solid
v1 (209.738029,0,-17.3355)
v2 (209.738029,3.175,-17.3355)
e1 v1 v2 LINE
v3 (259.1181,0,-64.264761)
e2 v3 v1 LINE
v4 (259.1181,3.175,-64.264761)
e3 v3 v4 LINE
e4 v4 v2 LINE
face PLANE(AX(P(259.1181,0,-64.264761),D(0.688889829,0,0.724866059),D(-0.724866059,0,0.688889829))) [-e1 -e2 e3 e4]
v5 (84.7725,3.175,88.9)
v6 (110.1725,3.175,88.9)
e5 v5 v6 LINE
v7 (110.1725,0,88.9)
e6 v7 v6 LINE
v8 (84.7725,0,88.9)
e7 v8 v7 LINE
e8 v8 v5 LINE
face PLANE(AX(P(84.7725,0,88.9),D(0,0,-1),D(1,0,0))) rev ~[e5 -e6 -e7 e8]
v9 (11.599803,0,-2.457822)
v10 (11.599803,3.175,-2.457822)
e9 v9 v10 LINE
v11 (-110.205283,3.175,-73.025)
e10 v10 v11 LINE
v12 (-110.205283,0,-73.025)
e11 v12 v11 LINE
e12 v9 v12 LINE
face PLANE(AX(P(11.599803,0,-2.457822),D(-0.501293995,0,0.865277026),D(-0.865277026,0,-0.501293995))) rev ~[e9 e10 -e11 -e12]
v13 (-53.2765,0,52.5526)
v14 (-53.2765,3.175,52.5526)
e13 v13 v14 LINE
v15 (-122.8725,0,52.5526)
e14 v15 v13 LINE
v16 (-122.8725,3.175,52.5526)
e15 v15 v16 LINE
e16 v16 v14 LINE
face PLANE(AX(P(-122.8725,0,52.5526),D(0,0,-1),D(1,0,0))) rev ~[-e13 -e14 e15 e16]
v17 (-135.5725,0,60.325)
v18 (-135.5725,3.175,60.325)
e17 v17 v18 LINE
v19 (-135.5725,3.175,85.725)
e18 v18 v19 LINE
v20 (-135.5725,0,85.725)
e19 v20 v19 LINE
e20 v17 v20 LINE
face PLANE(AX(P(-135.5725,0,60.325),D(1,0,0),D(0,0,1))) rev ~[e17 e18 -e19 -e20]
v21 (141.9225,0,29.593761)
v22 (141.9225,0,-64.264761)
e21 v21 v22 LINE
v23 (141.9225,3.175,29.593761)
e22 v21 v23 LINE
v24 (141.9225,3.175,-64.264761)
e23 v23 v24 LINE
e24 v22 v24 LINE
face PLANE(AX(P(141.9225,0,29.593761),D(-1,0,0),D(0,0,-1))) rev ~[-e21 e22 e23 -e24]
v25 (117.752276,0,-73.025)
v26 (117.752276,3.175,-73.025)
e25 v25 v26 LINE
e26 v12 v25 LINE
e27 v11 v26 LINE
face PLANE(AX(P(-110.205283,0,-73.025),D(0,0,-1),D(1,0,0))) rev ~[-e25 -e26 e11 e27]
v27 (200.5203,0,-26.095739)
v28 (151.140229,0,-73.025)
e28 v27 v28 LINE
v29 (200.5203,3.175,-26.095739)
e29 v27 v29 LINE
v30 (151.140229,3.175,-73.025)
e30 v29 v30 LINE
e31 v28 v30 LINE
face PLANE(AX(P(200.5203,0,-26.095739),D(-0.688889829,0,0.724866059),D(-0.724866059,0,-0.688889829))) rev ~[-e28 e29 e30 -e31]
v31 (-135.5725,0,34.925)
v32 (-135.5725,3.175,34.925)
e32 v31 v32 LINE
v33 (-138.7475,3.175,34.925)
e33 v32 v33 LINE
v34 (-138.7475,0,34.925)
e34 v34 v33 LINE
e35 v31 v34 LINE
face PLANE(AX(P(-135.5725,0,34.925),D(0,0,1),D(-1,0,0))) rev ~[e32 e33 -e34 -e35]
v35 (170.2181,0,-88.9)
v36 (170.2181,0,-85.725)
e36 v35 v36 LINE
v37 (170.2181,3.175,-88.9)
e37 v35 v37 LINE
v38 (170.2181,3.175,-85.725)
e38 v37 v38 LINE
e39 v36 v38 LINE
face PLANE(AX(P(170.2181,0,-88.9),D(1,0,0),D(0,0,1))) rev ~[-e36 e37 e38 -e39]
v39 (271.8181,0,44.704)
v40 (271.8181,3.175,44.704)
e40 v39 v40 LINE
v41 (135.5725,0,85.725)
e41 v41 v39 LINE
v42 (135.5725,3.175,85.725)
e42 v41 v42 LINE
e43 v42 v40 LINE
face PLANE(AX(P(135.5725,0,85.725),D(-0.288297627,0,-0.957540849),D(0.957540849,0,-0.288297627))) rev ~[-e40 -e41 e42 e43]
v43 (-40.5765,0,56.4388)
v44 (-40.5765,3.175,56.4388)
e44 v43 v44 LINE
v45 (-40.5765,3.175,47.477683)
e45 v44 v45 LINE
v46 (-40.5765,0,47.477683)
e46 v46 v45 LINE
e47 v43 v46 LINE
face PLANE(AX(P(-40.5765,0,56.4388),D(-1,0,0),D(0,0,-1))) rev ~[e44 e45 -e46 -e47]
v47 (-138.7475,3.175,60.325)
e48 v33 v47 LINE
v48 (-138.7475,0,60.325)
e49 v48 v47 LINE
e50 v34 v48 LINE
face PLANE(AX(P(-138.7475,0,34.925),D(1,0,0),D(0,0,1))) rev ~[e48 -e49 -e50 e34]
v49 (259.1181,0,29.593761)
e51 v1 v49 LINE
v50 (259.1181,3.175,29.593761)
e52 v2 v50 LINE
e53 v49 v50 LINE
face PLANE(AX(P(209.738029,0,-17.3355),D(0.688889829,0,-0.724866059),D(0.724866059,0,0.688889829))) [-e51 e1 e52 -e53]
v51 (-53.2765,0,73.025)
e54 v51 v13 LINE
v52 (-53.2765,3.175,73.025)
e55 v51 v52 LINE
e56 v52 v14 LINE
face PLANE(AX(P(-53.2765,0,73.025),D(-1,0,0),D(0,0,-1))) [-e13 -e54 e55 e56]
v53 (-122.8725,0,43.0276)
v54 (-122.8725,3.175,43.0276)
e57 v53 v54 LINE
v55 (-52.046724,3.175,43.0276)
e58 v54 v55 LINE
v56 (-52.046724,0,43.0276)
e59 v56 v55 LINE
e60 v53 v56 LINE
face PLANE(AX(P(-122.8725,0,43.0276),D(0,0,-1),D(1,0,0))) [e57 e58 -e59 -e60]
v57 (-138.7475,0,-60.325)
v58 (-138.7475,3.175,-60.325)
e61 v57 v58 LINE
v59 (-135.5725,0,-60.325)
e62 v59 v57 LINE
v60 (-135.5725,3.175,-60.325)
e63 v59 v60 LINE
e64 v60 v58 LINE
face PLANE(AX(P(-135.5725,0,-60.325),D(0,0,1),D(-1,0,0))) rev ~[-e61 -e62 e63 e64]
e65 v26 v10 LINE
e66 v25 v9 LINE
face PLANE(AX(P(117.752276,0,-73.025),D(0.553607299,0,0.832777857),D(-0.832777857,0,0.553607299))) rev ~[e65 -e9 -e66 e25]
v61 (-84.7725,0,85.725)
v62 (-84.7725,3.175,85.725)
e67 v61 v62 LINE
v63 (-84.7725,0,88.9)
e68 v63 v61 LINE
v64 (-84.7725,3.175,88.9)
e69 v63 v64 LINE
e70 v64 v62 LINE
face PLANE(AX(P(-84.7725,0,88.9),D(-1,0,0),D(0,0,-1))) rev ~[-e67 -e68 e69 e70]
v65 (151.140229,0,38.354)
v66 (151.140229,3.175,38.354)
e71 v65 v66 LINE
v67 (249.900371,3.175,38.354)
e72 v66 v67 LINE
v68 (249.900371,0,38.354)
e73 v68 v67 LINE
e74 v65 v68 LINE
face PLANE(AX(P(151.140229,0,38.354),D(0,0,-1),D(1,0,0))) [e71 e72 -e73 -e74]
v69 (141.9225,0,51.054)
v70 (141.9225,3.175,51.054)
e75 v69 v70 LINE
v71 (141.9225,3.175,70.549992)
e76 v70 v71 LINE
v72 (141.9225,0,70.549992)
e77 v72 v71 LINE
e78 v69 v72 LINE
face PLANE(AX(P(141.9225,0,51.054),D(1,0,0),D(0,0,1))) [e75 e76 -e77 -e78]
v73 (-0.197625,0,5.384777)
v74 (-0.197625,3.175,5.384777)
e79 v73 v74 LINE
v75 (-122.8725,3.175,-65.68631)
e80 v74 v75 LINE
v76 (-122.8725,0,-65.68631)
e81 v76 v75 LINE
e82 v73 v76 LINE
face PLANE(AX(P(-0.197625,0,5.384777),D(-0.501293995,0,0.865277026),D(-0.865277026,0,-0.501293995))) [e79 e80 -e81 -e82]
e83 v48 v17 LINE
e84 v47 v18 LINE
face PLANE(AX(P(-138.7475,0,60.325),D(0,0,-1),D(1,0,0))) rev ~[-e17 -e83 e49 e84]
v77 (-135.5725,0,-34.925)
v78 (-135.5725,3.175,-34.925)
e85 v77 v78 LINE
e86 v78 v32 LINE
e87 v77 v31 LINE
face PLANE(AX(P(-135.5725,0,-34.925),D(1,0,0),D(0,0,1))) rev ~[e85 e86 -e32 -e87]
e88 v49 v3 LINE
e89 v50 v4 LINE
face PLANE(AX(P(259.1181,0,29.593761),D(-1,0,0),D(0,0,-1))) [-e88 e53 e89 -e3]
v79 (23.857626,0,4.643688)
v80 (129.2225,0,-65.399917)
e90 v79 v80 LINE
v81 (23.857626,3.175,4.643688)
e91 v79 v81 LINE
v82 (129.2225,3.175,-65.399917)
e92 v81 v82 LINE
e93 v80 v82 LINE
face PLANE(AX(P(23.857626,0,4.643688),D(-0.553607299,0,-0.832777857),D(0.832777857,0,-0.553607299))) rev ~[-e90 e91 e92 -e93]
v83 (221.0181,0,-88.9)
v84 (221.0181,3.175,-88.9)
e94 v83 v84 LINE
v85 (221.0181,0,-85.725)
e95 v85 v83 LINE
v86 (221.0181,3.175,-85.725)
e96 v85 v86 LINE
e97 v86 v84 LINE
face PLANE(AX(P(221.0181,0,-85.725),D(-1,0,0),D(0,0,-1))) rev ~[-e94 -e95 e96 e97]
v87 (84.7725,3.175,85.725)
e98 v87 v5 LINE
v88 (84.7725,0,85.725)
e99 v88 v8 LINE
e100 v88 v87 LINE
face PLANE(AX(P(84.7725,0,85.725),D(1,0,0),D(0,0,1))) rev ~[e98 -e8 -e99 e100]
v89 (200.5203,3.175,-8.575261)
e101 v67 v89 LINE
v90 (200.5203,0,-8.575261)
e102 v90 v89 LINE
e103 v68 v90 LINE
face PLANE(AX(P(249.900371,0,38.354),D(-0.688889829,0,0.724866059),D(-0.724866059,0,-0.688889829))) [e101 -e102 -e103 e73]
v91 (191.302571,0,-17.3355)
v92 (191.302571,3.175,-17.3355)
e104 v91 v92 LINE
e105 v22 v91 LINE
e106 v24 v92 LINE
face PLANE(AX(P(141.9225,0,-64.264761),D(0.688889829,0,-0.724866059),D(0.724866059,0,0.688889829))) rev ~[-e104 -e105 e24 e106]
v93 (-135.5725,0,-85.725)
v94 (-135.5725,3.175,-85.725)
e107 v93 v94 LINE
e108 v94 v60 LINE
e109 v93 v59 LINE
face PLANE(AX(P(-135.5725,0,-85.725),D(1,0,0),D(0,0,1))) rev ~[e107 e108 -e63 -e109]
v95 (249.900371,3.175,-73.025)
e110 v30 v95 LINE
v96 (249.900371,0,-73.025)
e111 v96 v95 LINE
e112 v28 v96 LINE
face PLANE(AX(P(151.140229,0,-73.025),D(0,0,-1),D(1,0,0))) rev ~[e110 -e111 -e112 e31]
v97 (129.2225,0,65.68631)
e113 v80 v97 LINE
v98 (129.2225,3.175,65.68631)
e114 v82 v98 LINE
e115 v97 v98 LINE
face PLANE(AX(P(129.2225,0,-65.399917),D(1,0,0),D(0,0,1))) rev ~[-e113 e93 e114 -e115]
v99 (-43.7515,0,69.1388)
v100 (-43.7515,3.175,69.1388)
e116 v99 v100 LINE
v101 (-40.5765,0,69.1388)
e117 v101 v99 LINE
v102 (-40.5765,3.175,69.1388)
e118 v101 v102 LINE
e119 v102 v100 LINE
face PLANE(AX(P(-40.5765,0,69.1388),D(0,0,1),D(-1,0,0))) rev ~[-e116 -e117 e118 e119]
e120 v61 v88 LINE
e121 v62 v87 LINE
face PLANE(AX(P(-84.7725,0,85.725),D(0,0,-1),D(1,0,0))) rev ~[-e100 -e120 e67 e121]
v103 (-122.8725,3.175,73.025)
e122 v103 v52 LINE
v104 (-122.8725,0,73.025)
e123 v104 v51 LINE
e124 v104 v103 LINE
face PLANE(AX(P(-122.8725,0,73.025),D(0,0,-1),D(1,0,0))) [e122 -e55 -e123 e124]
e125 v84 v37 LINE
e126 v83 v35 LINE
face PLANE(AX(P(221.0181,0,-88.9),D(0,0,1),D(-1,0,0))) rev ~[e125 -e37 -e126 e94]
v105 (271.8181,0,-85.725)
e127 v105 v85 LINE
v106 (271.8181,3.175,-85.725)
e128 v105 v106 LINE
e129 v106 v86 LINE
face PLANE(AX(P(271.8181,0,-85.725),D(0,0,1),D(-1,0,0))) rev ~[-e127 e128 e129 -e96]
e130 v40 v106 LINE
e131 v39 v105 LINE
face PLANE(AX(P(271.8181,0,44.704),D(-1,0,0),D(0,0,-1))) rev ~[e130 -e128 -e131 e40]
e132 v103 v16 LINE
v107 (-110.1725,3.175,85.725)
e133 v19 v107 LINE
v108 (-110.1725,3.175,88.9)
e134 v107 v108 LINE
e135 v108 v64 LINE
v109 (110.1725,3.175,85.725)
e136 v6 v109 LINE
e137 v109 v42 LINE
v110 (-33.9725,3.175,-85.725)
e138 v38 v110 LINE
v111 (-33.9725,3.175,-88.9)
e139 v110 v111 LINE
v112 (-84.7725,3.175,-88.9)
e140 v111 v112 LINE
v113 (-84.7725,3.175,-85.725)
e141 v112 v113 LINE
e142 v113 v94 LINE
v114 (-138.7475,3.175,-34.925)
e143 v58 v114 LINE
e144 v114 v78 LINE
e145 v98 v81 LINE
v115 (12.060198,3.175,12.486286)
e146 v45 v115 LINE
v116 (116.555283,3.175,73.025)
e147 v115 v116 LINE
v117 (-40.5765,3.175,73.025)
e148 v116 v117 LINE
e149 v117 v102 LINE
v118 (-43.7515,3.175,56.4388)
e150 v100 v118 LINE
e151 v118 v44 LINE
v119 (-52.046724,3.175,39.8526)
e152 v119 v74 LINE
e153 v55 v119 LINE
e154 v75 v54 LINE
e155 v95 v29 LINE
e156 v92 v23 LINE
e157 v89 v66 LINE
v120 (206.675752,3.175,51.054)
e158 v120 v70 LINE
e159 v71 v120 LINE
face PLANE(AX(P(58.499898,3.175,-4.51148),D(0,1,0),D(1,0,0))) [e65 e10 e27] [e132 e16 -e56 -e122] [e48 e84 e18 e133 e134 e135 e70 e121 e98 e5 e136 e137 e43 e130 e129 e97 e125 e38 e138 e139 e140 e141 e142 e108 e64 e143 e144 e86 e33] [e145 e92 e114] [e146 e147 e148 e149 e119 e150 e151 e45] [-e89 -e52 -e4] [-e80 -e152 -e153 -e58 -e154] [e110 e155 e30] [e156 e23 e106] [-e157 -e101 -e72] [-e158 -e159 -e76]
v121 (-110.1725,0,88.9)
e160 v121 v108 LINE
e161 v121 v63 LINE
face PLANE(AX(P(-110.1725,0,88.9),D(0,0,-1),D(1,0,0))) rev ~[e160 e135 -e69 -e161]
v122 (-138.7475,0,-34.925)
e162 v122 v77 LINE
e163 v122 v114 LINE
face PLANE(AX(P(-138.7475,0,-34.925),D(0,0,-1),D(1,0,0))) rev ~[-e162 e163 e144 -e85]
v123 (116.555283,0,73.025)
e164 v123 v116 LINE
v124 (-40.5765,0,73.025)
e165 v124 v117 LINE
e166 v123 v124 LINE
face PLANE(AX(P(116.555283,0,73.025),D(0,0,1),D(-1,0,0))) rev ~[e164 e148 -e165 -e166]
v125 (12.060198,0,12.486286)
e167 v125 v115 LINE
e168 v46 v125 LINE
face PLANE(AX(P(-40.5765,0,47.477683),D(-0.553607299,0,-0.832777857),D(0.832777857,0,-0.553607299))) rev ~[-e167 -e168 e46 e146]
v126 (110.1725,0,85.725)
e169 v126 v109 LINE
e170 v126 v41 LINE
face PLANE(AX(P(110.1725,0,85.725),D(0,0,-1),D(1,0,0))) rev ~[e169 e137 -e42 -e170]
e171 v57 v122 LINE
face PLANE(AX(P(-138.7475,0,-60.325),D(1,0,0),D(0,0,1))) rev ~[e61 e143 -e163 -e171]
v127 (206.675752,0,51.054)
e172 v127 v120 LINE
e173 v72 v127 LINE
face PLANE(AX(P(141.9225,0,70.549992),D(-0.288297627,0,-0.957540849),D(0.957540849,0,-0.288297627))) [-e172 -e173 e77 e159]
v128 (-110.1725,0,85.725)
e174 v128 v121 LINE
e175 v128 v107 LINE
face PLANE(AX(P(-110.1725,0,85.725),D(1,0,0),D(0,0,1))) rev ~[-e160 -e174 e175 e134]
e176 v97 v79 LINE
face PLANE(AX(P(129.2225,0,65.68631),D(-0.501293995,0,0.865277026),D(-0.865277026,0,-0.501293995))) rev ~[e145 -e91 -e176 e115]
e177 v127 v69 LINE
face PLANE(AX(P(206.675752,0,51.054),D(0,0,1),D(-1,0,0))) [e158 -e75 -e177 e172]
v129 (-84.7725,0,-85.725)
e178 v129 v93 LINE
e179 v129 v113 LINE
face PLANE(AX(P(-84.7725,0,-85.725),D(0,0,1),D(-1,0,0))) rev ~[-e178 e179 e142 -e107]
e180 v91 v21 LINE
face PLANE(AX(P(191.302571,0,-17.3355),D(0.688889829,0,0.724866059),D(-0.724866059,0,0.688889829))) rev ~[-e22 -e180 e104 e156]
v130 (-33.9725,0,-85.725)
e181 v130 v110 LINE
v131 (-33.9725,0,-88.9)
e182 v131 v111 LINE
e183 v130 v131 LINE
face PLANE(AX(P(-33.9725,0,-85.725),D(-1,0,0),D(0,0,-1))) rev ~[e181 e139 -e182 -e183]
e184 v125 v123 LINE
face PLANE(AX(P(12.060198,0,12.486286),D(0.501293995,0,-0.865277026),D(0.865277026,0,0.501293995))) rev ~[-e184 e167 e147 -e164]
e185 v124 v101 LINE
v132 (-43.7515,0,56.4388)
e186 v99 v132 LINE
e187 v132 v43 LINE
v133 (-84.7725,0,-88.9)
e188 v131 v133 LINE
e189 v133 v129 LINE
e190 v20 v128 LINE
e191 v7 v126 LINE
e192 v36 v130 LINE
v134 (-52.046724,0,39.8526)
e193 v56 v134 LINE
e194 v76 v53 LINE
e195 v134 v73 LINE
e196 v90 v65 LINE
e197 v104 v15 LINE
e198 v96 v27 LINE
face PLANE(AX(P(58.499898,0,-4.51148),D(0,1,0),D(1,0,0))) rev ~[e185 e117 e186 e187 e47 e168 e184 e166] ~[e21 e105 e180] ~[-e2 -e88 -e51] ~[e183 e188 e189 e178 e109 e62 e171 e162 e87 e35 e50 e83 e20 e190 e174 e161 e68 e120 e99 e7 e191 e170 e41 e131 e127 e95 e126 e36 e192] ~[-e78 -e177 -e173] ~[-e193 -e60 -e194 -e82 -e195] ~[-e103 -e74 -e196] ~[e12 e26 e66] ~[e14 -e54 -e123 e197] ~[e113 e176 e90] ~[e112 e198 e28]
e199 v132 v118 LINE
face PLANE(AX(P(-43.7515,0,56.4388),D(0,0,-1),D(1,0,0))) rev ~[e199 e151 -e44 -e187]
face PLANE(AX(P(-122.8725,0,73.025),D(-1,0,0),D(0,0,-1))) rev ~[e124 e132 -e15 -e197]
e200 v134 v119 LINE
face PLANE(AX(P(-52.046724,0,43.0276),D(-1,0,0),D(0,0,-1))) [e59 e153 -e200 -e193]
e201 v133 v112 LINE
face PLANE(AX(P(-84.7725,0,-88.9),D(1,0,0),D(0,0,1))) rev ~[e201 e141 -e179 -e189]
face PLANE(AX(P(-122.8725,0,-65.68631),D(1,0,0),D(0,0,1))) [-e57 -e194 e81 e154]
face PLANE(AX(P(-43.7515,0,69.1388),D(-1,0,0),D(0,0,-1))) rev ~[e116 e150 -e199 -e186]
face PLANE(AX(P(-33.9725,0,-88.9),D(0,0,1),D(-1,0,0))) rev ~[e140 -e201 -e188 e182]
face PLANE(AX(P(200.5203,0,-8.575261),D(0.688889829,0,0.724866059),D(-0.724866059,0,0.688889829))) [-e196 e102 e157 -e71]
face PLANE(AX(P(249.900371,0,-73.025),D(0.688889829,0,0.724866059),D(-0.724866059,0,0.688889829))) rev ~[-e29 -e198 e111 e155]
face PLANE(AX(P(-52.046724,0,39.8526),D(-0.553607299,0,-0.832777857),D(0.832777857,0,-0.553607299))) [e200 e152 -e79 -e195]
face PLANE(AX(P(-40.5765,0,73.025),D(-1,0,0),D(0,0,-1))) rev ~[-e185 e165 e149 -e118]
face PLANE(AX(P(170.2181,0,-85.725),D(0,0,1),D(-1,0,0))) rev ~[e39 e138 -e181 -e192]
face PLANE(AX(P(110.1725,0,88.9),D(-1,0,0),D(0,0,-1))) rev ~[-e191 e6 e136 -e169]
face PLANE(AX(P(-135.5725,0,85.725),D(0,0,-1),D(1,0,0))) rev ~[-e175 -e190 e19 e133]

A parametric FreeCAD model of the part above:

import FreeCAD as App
import Part
import Sketcher
from FreeCAD import Vector
Q = App.Units.Quantity


def add_polygon(sketch, points):
    """Adds a closed chain of lines whose ends are joined by coincident constraints."""
    first, n = sketch.GeometryCount, len(points)
    for a, b in zip(points, points[1:] + points[:1]):
        sketch.addGeometry(Part.LineSegment(App.Vector(*a, 0), App.Vector(*b, 0)), False)
    for i in range(n):
        sketch.addConstraint(Sketcher.Constraint("Coincident", first + i, 2, first + (i + 1) % n, 1))

doc = App.newDocument("Part")
body = doc.addObject("PartDesign::Body", "Body")

sketch1 = body.newObject("Sketcher::SketchObject", "Sketch")
sketch1.AttachmentSupport = (doc.getObject("XZ_Plane"), [""])
sketch1.MapMode = "FlatFace"
add_polygon(sketch1, [(135.6, 85.7), (271.8, 44.7), (271.8, -85.7), (221, -85.7), (221, -88.9), (170.2, -88.9), (170.2, -85.7), (-34, -85.7), (-34, -88.9), (-84.8, -88.9), (-84.8, -85.7), (-135.6, -85.7), (-135.6, -60.3), (-138.7, -60.3), (-138.7, -34.9), (-135.6, -34.9), (-135.6, 34.9), (-138.7, 34.9), (-138.7, 60.3), (-135.6, 60.3), (-135.6, 85.7), (-110.2, 85.7), (-110.2, 88.9), (-84.8, 88.9), (-84.8, 85.7), (84.8, 85.7), (84.8, 88.9), (110.2, 88.9), (110.2, 85.7)])
add_polygon(sketch1, [(-53.3, 73), (-122.9, 73), (-122.9, 52.6), (-53.3, 52.6)])
add_polygon(sketch1, [(-43.8, 56.4), (-40.6, 56.4), (-40.6, 47.5), (12.1, 12.5), (116.6, 73), (-40.6, 73), (-40.6, 69.1), (-43.8, 69.1)])
add_polygon(sketch1, [(141.9, 70.5), (141.9, 51.1), (206.7, 51.1)])
add_polygon(sketch1, [(23.9, 4.6), (129.2, -65.4), (129.2, 65.7)])
add_polygon(sketch1, [(249.9, 38.4), (151.1, 38.4), (200.5, -8.6)])
add_polygon(sketch1, [(-122.9, 43), (-122.9, -65.7), (-0.2, 5.4), (-52, 39.9), (-52, 43)])
add_polygon(sketch1, [(11.6, -2.5), (-110.2, -73), (117.8, -73)])
add_polygon(sketch1, [(141.9, -64.3), (191.3, -17.3), (141.9, 29.6)])
add_polygon(sketch1, [(259.1, 29.6), (209.7, -17.3), (259.1, -64.3)])
add_polygon(sketch1, [(200.5, -26.1), (151.1, -73), (249.9, -73)])
sketch1.addConstraint([
    Sketcher.Constraint("Vertical", 1),
    Sketcher.Constraint("Horizontal", 2),
    Sketcher.Constraint("Vertical", 3),
    Sketcher.Constraint("Horizontal", 4),
    Sketcher.Constraint("Vertical", 5),
    Sketcher.Constraint("Horizontal", 6),
    Sketcher.Constraint("Vertical", 7),
    Sketcher.Constraint("Horizontal", 8),
    Sketcher.Constraint("Vertical", 9),
    Sketcher.Constraint("Horizontal", 10),
    Sketcher.Constraint("Vertical", 11),
    Sketcher.Constraint("Horizontal", 12),
    Sketcher.Constraint("Vertical", 13),
    Sketcher.Constraint("Horizontal", 14),
    Sketcher.Constraint("Vertical", 15),
    Sketcher.Constraint("Horizontal", 16),
    Sketcher.Constraint("Vertical", 17),
    Sketcher.Constraint("Horizontal", 18),
    Sketcher.Constraint("Vertical", 19),
    Sketcher.Constraint("Horizontal", 20),
    Sketcher.Constraint("Vertical", 21),
    Sketcher.Constraint("Horizontal", 22),
    Sketcher.Constraint("Vertical", 23),
    Sketcher.Constraint("Horizontal", 24),
    Sketcher.Constraint("Vertical", 25),
    Sketcher.Constraint("Horizontal", 26),
    Sketcher.Constraint("Vertical", 27),
    Sketcher.Constraint("Horizontal", 28),
    Sketcher.Constraint("Horizontal", 29),
    Sketcher.Constraint("Vertical", 30),
    Sketcher.Constraint("Horizontal", 31),
    Sketcher.Constraint("Vertical", 32),
    Sketcher.Constraint("Horizontal", 33),
    Sketcher.Constraint("Vertical", 34),
    Sketcher.Constraint("Horizontal", 37),
    Sketcher.Constraint("Vertical", 38),
    Sketcher.Constraint("Horizontal", 39),
    Sketcher.Constraint("Vertical", 40),
    Sketcher.Constraint("Vertical", 41),
    Sketcher.Constraint("Horizontal", 42),
    Sketcher.Constraint("Vertical", 45),
    Sketcher.Constraint("Horizontal", 47),
    Sketcher.Constraint("Vertical", 50),
    Sketcher.Constraint("Vertical", 53),
    Sketcher.Constraint("Horizontal", 54),
    Sketcher.Constraint("Horizontal", 56),
    Sketcher.Constraint("Vertical", 60),
    Sketcher.Constraint("Vertical", 63),
    Sketcher.Constraint("Horizontal", 65),
    Sketcher.Constraint("Symmetric", 9, 2, 24, 2, -1, 1),
    Sketcher.Constraint("Symmetric", 10, 2, 28, 2, -1, 1),
    Sketcher.Constraint("Symmetric", 22, 2, 25, 2, -2),
    Sketcher.Constraint("Symmetric", 20, 2, 27, 2, -2),
    Sketcher.Constraint("Symmetric", 13, 2, 16, 2, -1),
    Sketcher.Constraint("Symmetric", 11, 2, 18, 2, -1),
    Sketcher.Constraint("Parallel", 0, 43),
    Sketcher.Constraint("Parallel", 35, 44),
    Sketcher.Constraint("Parallel", 36, 46),
    Sketcher.Constraint("Parallel", 46, 51),
    Sketcher.Constraint("Parallel", 44, 52),
    Sketcher.Constraint("Parallel", 51, 55),
    Sketcher.Constraint("Parallel", 52, 57),
    Sketcher.Constraint("Parallel", 49, 58),
    Sketcher.Constraint("Parallel", 48, 59),
    Sketcher.Constraint("Parallel", 58, 61),
    Sketcher.Constraint("Parallel", 59, 62),
    Sketcher.Constraint("Parallel", 61, 64),
    Sketcher.Constraint("Parallel", 62, 66),
    Sketcher.Constraint("Horizontal", 2, 2, 5, 2),
    Sketcher.Constraint("Horizontal", 4, 2, 7, 2),
    Sketcher.Constraint("Horizontal", 6, 2, 9, 2),
    Sketcher.Constraint("Horizontal", 32, 2, 36, 2),
    Sketcher.Constraint("Horizontal", 58, 2, 61, 2),
    Sketcher.Constraint("Horizontal", 60, 2, 62, 2),
    Sketcher.Constraint("Horizontal", 59, 2, 63, 2),
    Sketcher.Constraint("Horizontal", 56, 2, 64, 2),
    Sketcher.Constraint("Vertical", 11, 2, 14, 2),
    Sketcher.Constraint("Vertical", 34, 2, 37, 2),
    Sketcher.Constraint("Vertical", 30, 2, 50, 2),
    Sketcher.Constraint("Vertical", 43, 2, 59, 2),
    Sketcher.Constraint("Vertical", 47, 2, 64, 2),
    Sketcher.Constraint("Vertical", 49, 2, 65, 2),
    Sketcher.Constraint("Equal", 2, 4),
    Sketcher.Constraint("Equal", 4, 8),
    Sketcher.Constraint("Equal", 8, 10),
    Sketcher.Constraint("Equal", 20, 22),
    Sketcher.Constraint("Equal", 18, 33),
    Sketcher.Constraint("Equal", 39, 3),
    Sketcher.Constraint("Equal", 28, 11),
    Sketcher.Constraint("Equal", 11, 13),
    Sketcher.Constraint("Equal", 9, 21),
    Sketcher.Constraint("Equal", 27, 53),
    Sketcher.Constraint("Equal", 49, 58),
    Sketcher.Constraint("DistanceX", 2, 2, 2, 1, Q("2 in")),
    Sketcher.Constraint("DistanceY", 40, 2, 40, 1, Q("0.5 in")),
    Sketcher.Constraint("DistanceX", 29, 2, 29, 1, Q("2.74 in")),
    Sketcher.Constraint("DistanceY", 15, 1, 15, 2, Q("2.75 in")),
    Sketcher.Constraint("DistanceY", 3, 2, -1, 1, Q("3.5 in")),
    Sketcher.Constraint("DistanceX", 6, 2, 6, 1, Q("8.039 in")),
    Sketcher.Constraint("DistanceX", 24, 1, 24, 2, Q("6.675 in")),
    Sketcher.Constraint("DistanceY", 1, 2, 1, 1, Q("5.135 in")),
    Sketcher.Constraint("DistanceY", 30, 2, 30, 1, Q("0.806 in")),
    Sketcher.Constraint("DistanceY", 38, 2, 38, 1, Q("0.153 in")),
    Sketcher.Constraint("DistanceY", -1, 1, 41, 2, Q("2.01 in")),
    Sketcher.Constraint("DistanceY", -1, 1, 47, 2, Q("1.51 in")),
    Sketcher.Constraint("DistanceY", 34, 2, 34, 1, Q("0.3527999 in")),
    Sketcher.Constraint("DistanceY", -1, 1, 29, 2, Q("2.875 in")),
    Sketcher.Constraint("DistanceY", -1, 1, 52, 2, Q("1.569 in")),
    Sketcher.Constraint("DistanceY", 55, 2, -1, 1, Q("2.875 in")),
    Sketcher.Constraint("DistanceX", 29, 2, -1, 1, Q("4.8375 in")),
    Sketcher.Constraint("DistanceX", 33, 2, -1, 1, Q("1.5975 in")),
    Sketcher.Constraint("DistanceX", -1, 1, 41, 2, Q("5.5875 in")),
    Sketcher.Constraint("DistanceX", -1, 1, 44, 2, Q("5.0875 in")),
    Sketcher.Constraint("DistanceY", 44, 2, -1, 1, Q("2.5747999 in")),
    Sketcher.Constraint("DistanceX", -1, 1, 48, 2, Q("7.8945 in")),
    Sketcher.Constraint("DistanceY", 58, 2, -1, 1, Q("0.6825 in")),
    Sketcher.Constraint("DistanceX", -1, 1, 62, 2, Q("10.2015 in")),
    Sketcher.Constraint("DistanceX", 42, 1, 42, 2, 64.753252),
    Sketcher.Constraint("DistanceX", 47, 2, 47, 1, 98.760141),
    Sketcher.Constraint("DistanceX", 56, 1, 56, 2, 227.957558),
    Sketcher.Constraint("DistanceY", 50, 2, 50, 1, 108.71391),
    Sketcher.Constraint("DistanceY", 60, 2, 60, 1, 93.858522),
    Sketcher.Constraint("DistanceX", -1, 1, 35, 2, 12.060198),
    Sketcher.Constraint("Distance", 35, 63.206169),
    Sketcher.Constraint("Distance", 36, 120.76489),
    Sketcher.Constraint("Distance", 51, 141.77526),
    Sketcher.Constraint("DistanceY", 45, 1, 45, 2, 131.086227),
    Sketcher.Constraint("DistanceX", 55, 2, -1, 1, 110.205283),
])
pad1 = body.newObject("PartDesign::Pad", "Pad")
pad1.Profile = sketch1
pad1.Length = Q("0.125 in")
pad1.Reversed = True

doc.recompute()
